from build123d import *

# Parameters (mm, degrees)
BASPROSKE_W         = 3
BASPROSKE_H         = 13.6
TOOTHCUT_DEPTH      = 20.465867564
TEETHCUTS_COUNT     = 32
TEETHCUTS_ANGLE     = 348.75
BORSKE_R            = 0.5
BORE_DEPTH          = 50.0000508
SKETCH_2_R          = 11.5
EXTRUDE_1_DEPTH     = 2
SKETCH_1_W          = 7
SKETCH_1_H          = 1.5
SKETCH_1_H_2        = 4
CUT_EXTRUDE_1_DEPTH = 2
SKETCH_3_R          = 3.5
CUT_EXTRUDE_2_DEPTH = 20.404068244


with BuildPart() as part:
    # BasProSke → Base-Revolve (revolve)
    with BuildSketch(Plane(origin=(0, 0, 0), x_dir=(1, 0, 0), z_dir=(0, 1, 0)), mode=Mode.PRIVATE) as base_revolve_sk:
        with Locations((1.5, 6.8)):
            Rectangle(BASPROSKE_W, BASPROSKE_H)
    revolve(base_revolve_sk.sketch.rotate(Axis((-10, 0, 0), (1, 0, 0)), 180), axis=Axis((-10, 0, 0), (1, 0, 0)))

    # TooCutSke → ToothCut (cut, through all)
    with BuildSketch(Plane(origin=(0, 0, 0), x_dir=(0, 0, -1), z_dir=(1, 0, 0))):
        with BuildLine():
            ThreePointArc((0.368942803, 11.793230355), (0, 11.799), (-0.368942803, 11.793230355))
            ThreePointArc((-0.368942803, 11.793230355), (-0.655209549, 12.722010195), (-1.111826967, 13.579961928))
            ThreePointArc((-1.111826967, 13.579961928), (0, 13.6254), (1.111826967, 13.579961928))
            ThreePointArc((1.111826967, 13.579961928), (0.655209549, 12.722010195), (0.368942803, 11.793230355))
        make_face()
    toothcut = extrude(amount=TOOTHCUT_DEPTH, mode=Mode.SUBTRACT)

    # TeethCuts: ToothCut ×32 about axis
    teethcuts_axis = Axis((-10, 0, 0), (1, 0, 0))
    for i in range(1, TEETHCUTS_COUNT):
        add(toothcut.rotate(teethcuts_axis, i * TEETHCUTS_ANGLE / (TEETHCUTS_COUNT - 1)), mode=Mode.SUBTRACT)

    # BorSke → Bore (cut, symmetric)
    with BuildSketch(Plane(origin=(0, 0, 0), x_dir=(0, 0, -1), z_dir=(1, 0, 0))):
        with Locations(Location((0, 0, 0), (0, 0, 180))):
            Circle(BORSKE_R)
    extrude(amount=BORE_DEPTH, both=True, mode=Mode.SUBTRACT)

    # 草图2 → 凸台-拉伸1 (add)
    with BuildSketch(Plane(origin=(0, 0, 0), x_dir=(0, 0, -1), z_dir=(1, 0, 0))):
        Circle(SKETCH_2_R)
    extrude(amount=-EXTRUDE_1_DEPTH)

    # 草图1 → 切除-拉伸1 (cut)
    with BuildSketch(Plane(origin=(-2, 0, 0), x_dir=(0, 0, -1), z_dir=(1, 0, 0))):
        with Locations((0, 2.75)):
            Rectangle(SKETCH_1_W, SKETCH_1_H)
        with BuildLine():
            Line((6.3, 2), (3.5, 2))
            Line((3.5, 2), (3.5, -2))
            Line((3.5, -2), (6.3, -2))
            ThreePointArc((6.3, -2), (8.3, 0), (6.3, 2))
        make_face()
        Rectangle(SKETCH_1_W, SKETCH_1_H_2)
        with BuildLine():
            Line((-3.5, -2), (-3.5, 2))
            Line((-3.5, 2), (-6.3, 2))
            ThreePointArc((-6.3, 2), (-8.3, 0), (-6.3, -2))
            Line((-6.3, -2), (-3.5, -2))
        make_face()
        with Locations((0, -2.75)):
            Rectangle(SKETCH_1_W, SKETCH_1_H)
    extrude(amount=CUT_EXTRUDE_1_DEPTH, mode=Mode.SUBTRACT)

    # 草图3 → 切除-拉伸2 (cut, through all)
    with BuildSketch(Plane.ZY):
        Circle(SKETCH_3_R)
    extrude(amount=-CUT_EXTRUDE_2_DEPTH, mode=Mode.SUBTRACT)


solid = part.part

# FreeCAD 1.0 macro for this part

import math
import FreeCAD as App
import Part
import Sketcher
from FreeCAD import Vector
Q = App.Units.Quantity


def add_polygon(sketch, points):
    """Adds a closed chain of lines whose ends are joined by coincident constraints."""
    first, n = sketch.GeometryCount, len(points)
    for a, b in zip(points, points[1:] + points[:1]):
        sketch.addGeometry(Part.LineSegment(App.Vector(*a, 0), App.Vector(*b, 0)), False)
    for i in range(n):
        sketch.addConstraint(Sketcher.Constraint("Coincident", first + i, 2, first + (i + 1) % n, 1))

doc = App.newDocument("Part")
body = doc.addObject("PartDesign::Body", "Body")

sketch1 = doc.addObject("Sketcher::SketchObject", "Sketch")
body.addObject(sketch1)
sketch1.AttachmentSupport = (doc.XZ_Plane, [""])
sketch1.MapMode = "FlatFace"
add_polygon(sketch1, [(0, -13.6), (0, 0), (3, 0), (3, -13.6)])
sketch1.addConstraint(Sketcher.Constraint("Vertical", 0))
sketch1.addConstraint(Sketcher.Constraint("Horizontal", 1))
sketch1.addConstraint(Sketcher.Constraint("Vertical", 2))
sketch1.addConstraint(Sketcher.Constraint("Horizontal", 3))
sketch1.addConstraint(Sketcher.Constraint("Coincident", 0, 2, -1, 1))
sketch1.addConstraint(Sketcher.Constraint("DistanceX", 1, 1, 1, 2, Q("3 mm")))
sketch1.addConstraint(Sketcher.Constraint("DistanceY", 0, 1, 0, 2, Q("13.6 mm")))
revolution = doc.addObject("PartDesign::Revolution", "Revolution")
body.addObject(revolution)
revolution.Profile = sketch1
revolution.ReferenceAxis = (sketch1, ["H_Axis"])
revolution.Angle = 360

sketch2 = doc.addObject("Sketcher::SketchObject", "Sketch001")
body.addObject(sketch2)
sketch2.AttachmentSupport = (doc.YZ_Plane, [""])
sketch2.MapMode = "FlatFace"
sketch2.addGeometry(Part.ArcOfCircle(Part.Circle(Vector(0, 0, 0), Vector(0, 0, 1), 11.8), math.radians(-1.79), math.radians(1.79)), False)
sketch2.addGeometry(Part.ArcOfCircle(Part.Circle(Vector(10.8, -5.4, 0), Vector(0, 0, 1), 5.1), math.radians(57), math.radians(78)), False)
sketch2.addGeometry(Part.ArcOfCircle(Part.Circle(Vector(0, 0, 0), Vector(0, 0, 1), 13.6), math.radians(-4.68), math.radians(4.68)), False)
sketch2.addGeometry(Part.ArcOfCircle(Part.Circle(Vector(10.8, 5.4, 0), Vector(0, 0, 1), 5.1), math.radians(-78), math.radians(-57)), False)
sketch2.addConstraint(Sketcher.Constraint("Coincident", 0, 1, 1, 2))
sketch2.addConstraint(Sketcher.Constraint("Coincident", 1, 1, 2, 1))
sketch2.addConstraint(Sketcher.Constraint("Coincident", 2, 2, 3, 2))
sketch2.addConstraint(Sketcher.Constraint("Coincident", 3, 1, 0, 2))
sketch2.addConstraint(Sketcher.Constraint("Coincident", 0, 3, -1, 1))
sketch2.addConstraint(Sketcher.Constraint("Coincident", 2, 3, -1, 1))
sketch2.addConstraint(Sketcher.Constraint("Equal", 1, 3))
sketch2.addConstraint(Sketcher.Constraint("Symmetric", 1, 3, 3, 3, -1))
sketch2.addConstraint(Sketcher.Constraint("Radius", 1, Q("5.12 mm")))
sketch2.addConstraint(Sketcher.Constraint("Radius", 0, Q("11.799 mm")))
sketch2.addConstraint(Sketcher.Constraint("Radius", 2, Q("13.6254 mm")))
sketch2.addConstraint(Sketcher.Constraint("DistanceX", -1, 1, 1, 3, Q("10.756359 mm")))
sketch2.addConstraint(Sketcher.Constraint("DistanceX", -1, 1, 0, 1, Q("11.79323 mm")))
pocket1 = doc.addObject("PartDesign::Pocket", "Pocket")
body.addObject(pocket1)
pocket1.Profile = sketch2
pocket1.Type = "ThroughAll"
pocket1.Reversed = True
doc.recompute()

polarpattern = doc.addObject("PartDesign::PolarPattern", "PolarPattern")
body.addObject(polarpattern)
polarpattern.Originals = [pocket1]
polarpattern.Axis = (doc.X_Axis, [""])
polarpattern.Angle = 360
polarpattern.Occurrences = 32
body.Tip = polarpattern

sketch3 = doc.addObject("Sketcher::SketchObject", "Sketch002")
body.addObject(sketch3)
sketch3.AttachmentSupport = (doc.YZ_Plane, [""])
sketch3.MapMode = "FlatFace"
sketch3.addGeometry(Part.Circle(Vector(0, 0, 0), Vector(0, 0, 1), 0.5), False)
sketch3.addConstraint(Sketcher.Constraint("Coincident", 0, 3, -1, 1))
sketch3.addConstraint(Sketcher.Constraint("Diameter", 0, Q("1 mm")))
pocket2 = doc.addObject("PartDesign::Pocket", "Pocket001")
body.addObject(pocket2)
pocket2.Profile = sketch3
pocket2.Length = 100.000102
pocket2.Midplane = True

sketch4 = doc.addObject("Sketcher::SketchObject", "Sketch003")
body.addObject(sketch4)
sketch4.AttachmentSupport = (doc.YZ_Plane, [""])
sketch4.MapMode = "FlatFace"
sketch4.addGeometry(Part.Circle(Vector(0, 0, 0), Vector(0, 0, 1), 12), False)
sketch4.addConstraint(Sketcher.Constraint("Coincident", 0, 3, -1, 1))
sketch4.addConstraint(Sketcher.Constraint("Diameter", 0, Q("23 mm")))
pad1 = doc.addObject("PartDesign::Pad", "Pad")
body.addObject(pad1)
pad1.Profile = sketch4
pad1.Length = 2
pad1.Reversed = True

sketch5 = doc.addObject("Sketcher::SketchObject", "Sketch004")
body.addObject(sketch5)
sketch5.AttachmentSupport = (doc.YZ_Plane, [""])
sketch5.MapMode = "FlatFace"
sketch5.AttachmentOffset = App.Placement(Vector(0, 0, -2), App.Rotation())
sketch5.addGeometry(Part.LineSegment(Vector(3.5, 3.5, 0), Vector(2, 3.5, 0)), False)
sketch5.addGeometry(Part.LineSegment(Vector(2, 3.5, 0), Vector(2, 6.3, 0)), False)
sketch5.addGeometry(Part.ArcOfCircle(Part.Circle(Vector(0, 6.3, 0), Vector(0, 0, 1), 2), math.radians(0), math.radians(180)), False)
sketch5.addGeometry(Part.LineSegment(Vector(-2, 6.3, 0), Vector(-2, 3.5, 0)), False)
sketch5.addGeometry(Part.LineSegment(Vector(-2, 3.5, 0), Vector(-3.5, 3.5, 0)), False)
sketch5.addGeometry(Part.LineSegment(Vector(-3.5, 3.5, 0), Vector(-3.5, -3.5, 0)), False)
sketch5.addGeometry(Part.LineSegment(Vector(-3.5, -3.5, 0), Vector(-2, -3.5, 0)), False)
sketch5.addGeometry(Part.LineSegment(Vector(-2, -3.5, 0), Vector(-2, -6.3, 0)), False)
sketch5.addGeometry(Part.ArcOfCircle(Part.Circle(Vector(0, -6.3, 0), Vector(0, 0, 1), 2), math.radians(180), math.radians(360)), False)
sketch5.addGeometry(Part.LineSegment(Vector(2, -6.3, 0), Vector(2, -3.5, 0)), False)
sketch5.addGeometry(Part.LineSegment(Vector(2, -3.5, 0), Vector(3.5, -3.5, 0)), False)
sketch5.addGeometry(Part.LineSegment(Vector(3.5, -3.5, 0), Vector(3.5, 3.5, 0)), False)
sketch5.addConstraint(Sketcher.Constraint("Coincident", 0, 2, 1, 1))
sketch5.addConstraint(Sketcher.Constraint("Tangent", 1, 2, 2, 1))
sketch5.addConstraint(Sketcher.Constraint("Tangent", 2, 2, 3, 1))
sketch5.addConstraint(Sketcher.Constraint("Coincident", 3, 2, 4, 1))
sketch5.addConstraint(Sketcher.Constraint("Coincident", 4, 2, 5, 1))
sketch5.addConstraint(Sketcher.Constraint("Coincident", 5, 2, 6, 1))
sketch5.addConstraint(Sketcher.Constraint("Coincident", 6, 2, 7, 1))
sketch5.addConstraint(Sketcher.Constraint("Tangent", 7, 2, 8, 1))
sketch5.addConstraint(Sketcher.Constraint("Tangent", 8, 2, 9, 1))
sketch5.addConstraint(Sketcher.Constraint("Coincident", 9, 2, 10, 1))
sketch5.addConstraint(Sketcher.Constraint("Coincident", 10, 2, 11, 1))
sketch5.addConstraint(Sketcher.Constraint("Coincident", 11, 2, 0, 1))
sketch5.addConstraint(Sketcher.Constraint("Horizontal", 0))
sketch5.addConstraint(Sketcher.Constraint("Vertical", 1))
sketch5.addConstraint(Sketcher.Constraint("Vertical", 3))
sketch5.addConstraint(Sketcher.Constraint("Horizontal", 4))
sketch5.addConstraint(Sketcher.Constraint("Vertical", 5))
sketch5.addConstraint(Sketcher.Constraint("Horizontal", 6))
sketch5.addConstraint(Sketcher.Constraint("Vertical", 7))
sketch5.addConstraint(Sketcher.Constraint("Vertical", 9))
sketch5.addConstraint(Sketcher.Constraint("Horizontal", 10))
sketch5.addConstraint(Sketcher.Constraint("Vertical", 11))
sketch5.addConstraint(Sketcher.Constraint("Equal", 2, 8))
sketch5.addConstraint(Sketcher.Constraint("Symmetric", 2, 3, 8, 3, -1, 1))
sketch5.addConstraint(Sketcher.Constraint("Symmetric", 4, 2, 10, 2, -1, 1))
sketch5.addConstraint(Sketcher.Constraint("Symmetric", 0, 2, 3, 2, -2))
sketch5.addConstraint(Sketcher.Constraint("Horizontal", 6, 2, 9, 2))
sketch5.addConstraint(Sketcher.Constraint("Radius", 2, Q("2 mm")))
sketch5.addConstraint(Sketcher.Constraint("DistanceY", 5, 2, 5, 1, Q("7 mm")))
sketch5.addConstraint(Sketcher.Constraint("DistanceX", 0, 2, 0, 1, Q("1.5 mm")))
sketch5.addConstraint(Sketcher.Constraint("DistanceY", 1, 1, 1, 2, Q("2.8 mm")))
pocket3 = doc.addObject("PartDesign::Pocket", "Pocket002")
body.addObject(pocket3)
pocket3.Profile = sketch5
pocket3.Length = 2
pocket3.Reversed = True

sketch6 = doc.addObject("Sketcher::SketchObject", "Sketch005")
body.addObject(sketch6)
sketch6.AttachmentSupport = (doc.YZ_Plane, [""])
sketch6.MapMode = "FlatFace"
sketch6.addGeometry(Part.Circle(Vector(0, 0, 0), Vector(0, 0, 1), 3.5), False)
sketch6.addConstraint(Sketcher.Constraint("Coincident", 0, 3, -1, 1))
sketch6.addConstraint(Sketcher.Constraint("Diameter", 0, Q("7 mm")))
pocket4 = doc.addObject("PartDesign::Pocket", "Pocket003")
body.addObject(pocket4)
pocket4.Profile = sketch6
pocket4.Type = "ThroughAll"
pocket4.Reversed = True

doc.recompute()
